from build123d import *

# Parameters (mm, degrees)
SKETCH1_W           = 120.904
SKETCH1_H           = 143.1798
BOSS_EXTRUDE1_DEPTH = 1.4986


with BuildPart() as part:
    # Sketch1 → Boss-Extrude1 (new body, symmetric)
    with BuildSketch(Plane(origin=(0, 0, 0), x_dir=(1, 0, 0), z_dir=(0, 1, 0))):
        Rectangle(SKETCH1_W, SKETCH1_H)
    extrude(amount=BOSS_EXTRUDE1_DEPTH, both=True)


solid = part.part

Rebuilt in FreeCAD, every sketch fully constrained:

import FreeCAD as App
import Part
import Sketcher
Q = App.Units.Quantity


def add_polygon(sketch, points):
    """Adds a closed chain of lines whose ends are joined by coincident constraints."""
    first, n = sketch.GeometryCount, len(points)
    for a, b in zip(points, points[1:] + points[:1]):
        sketch.addGeometry(Part.LineSegment(App.Vector(*a, 0), App.Vector(*b, 0)), False)
    for i in range(n):
        sketch.addConstraint(Sketcher.Constraint("Coincident", first + i, 2, first + (i + 1) % n, 1))

doc = App.newDocument("Part")
body = doc.addObject("PartDesign::Body", "Body")

sketch1 = body.newObject("Sketcher::SketchObject", "Sketch")
sketch1.AttachmentSupport = (doc.getObject("XZ_Plane"), [""])
sketch1.MapMode = "FlatFace"
add_polygon(sketch1, [(-60, -72), (-60, 72), (60, 72), (60, -72)])
sketch1.addConstraint(Sketcher.Constraint("Vertical", 0))
sketch1.addConstraint(Sketcher.Constraint("Horizontal", 1))
sketch1.addConstraint(Sketcher.Constraint("Vertical", 2))
sketch1.addConstraint(Sketcher.Constraint("Horizontal", 3))
sketch1.addConstraint(Sketcher.Constraint("Symmetric", 0, 2, 2, 2, -1, 1))
sketch1.addConstraint(Sketcher.Constraint("DistanceX", 1, 1, 1, 2, Q("4.76 in")))
sketch1.addConstraint(Sketcher.Constraint("DistanceY", 0, 1, 0, 2, Q("5.637 in")))
pad1 = body.newObject("PartDesign::Pad", "Pad")
pad1.Profile = sketch1
pad1.Length = Q("0.118 in")
pad1.Midplane = True

doc.recompute()
